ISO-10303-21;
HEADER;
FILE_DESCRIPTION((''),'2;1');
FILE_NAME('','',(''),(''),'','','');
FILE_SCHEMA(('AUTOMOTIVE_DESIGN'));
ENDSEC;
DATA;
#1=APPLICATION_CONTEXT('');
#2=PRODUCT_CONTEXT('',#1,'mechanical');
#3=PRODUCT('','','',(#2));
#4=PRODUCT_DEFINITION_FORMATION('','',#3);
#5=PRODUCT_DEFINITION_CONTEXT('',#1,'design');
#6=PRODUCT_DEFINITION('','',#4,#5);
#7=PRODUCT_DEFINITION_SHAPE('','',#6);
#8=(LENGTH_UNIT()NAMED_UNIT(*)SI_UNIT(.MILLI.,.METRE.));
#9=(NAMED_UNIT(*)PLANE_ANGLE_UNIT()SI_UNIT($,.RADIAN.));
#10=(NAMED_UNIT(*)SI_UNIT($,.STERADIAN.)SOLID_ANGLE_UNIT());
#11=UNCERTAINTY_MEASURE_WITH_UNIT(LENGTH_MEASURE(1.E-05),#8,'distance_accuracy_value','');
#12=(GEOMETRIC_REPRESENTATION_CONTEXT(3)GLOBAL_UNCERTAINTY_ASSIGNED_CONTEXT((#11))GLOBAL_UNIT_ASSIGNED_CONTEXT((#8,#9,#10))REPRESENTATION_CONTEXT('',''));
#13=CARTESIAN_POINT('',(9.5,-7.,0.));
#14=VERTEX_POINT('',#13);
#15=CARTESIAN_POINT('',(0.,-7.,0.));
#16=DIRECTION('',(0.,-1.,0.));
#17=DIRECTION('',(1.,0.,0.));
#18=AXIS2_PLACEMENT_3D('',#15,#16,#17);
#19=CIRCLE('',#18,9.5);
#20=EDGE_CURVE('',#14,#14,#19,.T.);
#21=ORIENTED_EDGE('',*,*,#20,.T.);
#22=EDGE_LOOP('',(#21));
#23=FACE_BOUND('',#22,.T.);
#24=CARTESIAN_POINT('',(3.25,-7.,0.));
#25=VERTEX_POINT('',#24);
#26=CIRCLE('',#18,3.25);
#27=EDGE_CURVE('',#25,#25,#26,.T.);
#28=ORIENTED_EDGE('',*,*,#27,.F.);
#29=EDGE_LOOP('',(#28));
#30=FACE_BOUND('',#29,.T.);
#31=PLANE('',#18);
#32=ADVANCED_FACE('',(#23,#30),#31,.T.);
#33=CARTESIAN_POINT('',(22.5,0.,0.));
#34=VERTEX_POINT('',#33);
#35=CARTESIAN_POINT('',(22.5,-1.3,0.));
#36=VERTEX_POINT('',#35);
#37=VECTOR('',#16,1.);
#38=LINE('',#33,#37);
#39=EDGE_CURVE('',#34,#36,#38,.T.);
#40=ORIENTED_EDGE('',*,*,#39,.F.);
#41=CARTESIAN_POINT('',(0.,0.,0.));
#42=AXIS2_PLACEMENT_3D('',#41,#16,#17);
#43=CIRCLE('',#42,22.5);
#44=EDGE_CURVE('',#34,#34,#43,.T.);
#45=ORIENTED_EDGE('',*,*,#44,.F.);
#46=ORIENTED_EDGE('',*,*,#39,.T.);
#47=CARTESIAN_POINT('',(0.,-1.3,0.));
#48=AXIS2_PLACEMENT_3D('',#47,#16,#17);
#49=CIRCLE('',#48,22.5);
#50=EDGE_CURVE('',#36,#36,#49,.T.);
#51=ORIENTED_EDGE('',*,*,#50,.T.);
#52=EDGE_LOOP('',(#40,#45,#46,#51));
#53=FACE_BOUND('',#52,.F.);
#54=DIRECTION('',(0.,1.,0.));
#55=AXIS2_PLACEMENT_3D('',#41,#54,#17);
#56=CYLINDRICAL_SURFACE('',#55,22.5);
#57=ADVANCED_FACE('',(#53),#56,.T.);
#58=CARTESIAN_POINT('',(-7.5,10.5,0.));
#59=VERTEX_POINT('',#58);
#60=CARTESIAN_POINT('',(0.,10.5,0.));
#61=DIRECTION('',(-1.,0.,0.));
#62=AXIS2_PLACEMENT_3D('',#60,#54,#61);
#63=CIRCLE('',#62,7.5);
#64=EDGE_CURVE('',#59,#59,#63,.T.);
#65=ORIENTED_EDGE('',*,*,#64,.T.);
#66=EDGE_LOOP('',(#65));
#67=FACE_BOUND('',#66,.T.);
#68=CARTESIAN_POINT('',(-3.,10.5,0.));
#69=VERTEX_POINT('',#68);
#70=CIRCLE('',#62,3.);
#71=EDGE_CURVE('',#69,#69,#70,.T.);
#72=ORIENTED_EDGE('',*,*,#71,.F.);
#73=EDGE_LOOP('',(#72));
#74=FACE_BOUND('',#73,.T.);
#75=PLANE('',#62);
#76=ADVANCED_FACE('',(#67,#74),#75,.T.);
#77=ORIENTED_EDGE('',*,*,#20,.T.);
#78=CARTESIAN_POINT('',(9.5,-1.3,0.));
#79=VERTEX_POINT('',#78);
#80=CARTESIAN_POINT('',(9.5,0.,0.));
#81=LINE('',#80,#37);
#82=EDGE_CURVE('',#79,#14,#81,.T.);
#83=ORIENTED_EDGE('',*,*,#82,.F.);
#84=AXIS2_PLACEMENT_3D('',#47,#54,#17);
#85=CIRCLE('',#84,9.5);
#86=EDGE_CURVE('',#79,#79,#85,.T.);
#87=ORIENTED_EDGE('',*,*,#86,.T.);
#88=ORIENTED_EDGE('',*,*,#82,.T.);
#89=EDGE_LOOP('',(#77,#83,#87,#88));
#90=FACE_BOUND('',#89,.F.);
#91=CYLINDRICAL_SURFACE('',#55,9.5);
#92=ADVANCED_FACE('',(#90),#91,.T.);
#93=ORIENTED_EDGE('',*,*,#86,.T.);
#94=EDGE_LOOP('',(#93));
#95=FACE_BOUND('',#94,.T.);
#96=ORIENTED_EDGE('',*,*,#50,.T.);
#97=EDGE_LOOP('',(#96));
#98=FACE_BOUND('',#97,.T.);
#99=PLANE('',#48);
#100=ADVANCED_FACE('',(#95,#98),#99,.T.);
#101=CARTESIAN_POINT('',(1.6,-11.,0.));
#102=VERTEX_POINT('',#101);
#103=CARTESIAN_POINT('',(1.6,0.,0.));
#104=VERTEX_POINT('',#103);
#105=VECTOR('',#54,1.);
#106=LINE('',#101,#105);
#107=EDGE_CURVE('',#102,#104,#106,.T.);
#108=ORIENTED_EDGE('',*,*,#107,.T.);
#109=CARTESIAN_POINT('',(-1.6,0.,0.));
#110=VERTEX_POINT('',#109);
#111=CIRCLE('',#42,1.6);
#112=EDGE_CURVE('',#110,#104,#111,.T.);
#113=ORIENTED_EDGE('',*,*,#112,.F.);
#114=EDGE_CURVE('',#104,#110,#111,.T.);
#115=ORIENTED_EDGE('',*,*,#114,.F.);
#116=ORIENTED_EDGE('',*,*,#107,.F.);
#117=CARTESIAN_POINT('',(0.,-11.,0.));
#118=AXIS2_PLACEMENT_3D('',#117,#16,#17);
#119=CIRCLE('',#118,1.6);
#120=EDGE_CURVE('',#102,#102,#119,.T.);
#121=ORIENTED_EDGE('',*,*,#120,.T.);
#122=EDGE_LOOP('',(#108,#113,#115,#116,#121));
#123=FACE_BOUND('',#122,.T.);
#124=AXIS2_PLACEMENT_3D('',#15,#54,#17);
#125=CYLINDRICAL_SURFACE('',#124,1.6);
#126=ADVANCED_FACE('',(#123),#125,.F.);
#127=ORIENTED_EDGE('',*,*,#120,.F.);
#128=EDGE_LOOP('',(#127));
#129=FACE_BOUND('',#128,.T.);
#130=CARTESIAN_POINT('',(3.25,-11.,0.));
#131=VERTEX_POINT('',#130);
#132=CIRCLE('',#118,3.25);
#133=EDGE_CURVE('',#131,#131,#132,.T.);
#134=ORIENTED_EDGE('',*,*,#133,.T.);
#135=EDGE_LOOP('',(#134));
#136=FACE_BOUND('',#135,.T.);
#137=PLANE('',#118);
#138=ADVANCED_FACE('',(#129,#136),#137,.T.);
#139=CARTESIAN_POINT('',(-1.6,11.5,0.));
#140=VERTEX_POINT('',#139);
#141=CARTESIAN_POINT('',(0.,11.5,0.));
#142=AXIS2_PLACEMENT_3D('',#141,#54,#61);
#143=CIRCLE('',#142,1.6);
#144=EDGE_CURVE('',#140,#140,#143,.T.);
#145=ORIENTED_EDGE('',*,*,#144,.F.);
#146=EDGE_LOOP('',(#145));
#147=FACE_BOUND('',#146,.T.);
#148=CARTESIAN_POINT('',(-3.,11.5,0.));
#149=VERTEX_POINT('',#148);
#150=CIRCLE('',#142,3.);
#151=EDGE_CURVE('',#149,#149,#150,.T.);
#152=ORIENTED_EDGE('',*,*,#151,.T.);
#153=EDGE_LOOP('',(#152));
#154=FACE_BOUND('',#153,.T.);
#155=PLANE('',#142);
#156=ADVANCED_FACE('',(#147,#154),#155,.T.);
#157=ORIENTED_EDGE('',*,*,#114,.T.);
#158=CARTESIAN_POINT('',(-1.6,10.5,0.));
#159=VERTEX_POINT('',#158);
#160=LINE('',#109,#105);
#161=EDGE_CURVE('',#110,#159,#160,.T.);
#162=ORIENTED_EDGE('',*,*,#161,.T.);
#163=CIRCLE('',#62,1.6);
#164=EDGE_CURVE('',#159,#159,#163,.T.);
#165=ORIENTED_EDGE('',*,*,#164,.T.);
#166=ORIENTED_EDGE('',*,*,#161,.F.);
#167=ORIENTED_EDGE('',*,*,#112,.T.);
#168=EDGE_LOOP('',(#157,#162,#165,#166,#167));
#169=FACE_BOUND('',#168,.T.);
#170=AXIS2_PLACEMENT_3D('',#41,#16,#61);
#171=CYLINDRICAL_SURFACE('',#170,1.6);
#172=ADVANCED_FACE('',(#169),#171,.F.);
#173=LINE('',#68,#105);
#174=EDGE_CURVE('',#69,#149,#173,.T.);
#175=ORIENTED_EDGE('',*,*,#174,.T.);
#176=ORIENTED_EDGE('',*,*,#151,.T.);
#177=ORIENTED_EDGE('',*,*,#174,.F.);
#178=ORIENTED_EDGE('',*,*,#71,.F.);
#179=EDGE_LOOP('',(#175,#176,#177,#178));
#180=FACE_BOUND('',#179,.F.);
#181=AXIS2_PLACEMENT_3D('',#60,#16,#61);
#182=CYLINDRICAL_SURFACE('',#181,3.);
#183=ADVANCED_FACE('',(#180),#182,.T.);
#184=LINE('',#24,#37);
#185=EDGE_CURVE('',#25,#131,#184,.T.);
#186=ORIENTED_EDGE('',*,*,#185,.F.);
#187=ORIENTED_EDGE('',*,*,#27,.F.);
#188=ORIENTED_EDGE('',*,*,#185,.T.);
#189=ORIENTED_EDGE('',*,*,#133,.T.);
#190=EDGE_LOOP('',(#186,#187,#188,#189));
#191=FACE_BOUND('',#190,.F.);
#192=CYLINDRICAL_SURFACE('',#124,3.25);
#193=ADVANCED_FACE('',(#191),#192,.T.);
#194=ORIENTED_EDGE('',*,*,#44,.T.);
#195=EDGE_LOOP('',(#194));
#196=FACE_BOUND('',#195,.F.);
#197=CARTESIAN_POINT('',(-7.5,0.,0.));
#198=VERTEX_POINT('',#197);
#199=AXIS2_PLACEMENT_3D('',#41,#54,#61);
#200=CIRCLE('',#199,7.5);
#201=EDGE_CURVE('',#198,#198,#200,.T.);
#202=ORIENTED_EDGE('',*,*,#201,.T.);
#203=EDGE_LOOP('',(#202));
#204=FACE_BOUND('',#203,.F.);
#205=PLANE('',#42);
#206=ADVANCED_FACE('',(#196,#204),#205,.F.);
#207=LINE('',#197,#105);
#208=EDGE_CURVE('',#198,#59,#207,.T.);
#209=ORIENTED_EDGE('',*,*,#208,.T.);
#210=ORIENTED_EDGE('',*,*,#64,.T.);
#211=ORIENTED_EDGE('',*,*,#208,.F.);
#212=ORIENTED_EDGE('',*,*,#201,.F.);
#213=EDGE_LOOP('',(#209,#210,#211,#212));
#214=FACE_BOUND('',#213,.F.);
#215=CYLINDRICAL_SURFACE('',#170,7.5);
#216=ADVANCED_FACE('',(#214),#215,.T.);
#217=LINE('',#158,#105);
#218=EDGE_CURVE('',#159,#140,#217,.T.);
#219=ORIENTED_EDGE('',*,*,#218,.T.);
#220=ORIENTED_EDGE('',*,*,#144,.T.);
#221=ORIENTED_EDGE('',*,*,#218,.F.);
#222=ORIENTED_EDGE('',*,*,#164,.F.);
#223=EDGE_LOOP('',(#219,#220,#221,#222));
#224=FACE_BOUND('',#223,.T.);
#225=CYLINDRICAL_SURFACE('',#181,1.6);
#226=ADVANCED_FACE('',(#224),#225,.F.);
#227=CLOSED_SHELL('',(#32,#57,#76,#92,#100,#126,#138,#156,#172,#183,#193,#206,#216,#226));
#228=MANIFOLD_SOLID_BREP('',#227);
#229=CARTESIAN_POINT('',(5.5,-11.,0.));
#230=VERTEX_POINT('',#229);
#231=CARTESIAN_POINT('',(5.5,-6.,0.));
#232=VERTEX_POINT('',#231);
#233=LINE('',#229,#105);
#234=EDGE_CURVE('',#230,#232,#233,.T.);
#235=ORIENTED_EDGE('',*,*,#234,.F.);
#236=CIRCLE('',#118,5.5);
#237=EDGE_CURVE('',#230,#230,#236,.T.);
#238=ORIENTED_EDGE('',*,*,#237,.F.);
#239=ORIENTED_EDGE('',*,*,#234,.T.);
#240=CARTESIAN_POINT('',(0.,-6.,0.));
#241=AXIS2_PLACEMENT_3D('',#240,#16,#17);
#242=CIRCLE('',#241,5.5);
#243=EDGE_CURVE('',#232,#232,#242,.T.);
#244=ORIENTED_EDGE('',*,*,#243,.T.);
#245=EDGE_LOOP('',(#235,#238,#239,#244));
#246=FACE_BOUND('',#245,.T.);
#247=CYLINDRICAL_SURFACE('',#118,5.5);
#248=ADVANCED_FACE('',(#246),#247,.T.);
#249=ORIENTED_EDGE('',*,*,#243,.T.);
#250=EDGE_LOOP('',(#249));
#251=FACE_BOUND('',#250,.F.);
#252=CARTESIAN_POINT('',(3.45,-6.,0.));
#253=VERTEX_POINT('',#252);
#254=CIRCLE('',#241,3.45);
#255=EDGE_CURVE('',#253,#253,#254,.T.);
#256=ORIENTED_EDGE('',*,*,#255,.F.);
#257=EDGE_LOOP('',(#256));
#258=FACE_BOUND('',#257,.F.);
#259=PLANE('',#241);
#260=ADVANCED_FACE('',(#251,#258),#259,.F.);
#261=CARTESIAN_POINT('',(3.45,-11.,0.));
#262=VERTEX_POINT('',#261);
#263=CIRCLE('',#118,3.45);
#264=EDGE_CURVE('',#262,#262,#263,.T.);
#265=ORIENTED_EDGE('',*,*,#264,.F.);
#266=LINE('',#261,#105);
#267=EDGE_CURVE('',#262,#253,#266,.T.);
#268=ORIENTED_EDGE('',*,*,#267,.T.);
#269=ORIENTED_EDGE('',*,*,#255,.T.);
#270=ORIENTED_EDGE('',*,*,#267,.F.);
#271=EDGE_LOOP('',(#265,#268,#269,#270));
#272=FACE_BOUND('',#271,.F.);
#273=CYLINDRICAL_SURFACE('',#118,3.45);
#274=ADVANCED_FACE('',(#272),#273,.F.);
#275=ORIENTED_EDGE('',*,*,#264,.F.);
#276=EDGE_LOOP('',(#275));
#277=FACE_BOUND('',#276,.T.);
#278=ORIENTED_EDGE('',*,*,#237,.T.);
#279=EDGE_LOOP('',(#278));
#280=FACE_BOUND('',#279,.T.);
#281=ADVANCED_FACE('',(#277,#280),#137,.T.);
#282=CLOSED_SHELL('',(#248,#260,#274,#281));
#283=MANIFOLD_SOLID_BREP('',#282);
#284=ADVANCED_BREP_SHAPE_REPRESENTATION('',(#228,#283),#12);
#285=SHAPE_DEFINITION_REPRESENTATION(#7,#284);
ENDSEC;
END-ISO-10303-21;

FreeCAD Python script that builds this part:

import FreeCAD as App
import Part
import Sketcher
from FreeCAD import Vector
Q = App.Units.Quantity

doc = App.newDocument("Part")
body = doc.addObject("PartDesign::Body", "Body")

# Sketch on XZ plane
sketch1 = body.newObject("Sketcher::SketchObject", "Sketch")
sketch1.AttachmentSupport = (doc.getObject("XZ_Plane"), [""])
sketch1.MapMode = "FlatFace"
sketch1.addGeometry([
    Part.Circle(Vector(0, 0, 0), Vector(0, 0, 1), 22.5),
    Part.Circle(Vector(0, 0, 0), Vector(0, 0, 1), 1.6),
], False)
sketch1.addConstraint([
    Sketcher.Constraint("Coincident", 0, 3, -1, 1),
    Sketcher.Constraint("Coincident", 1, 3, -1, 1),
    Sketcher.Constraint("Diameter", 0, Q("45 mm")),
    Sketcher.Constraint("Diameter", 1, Q("3.2 mm")),
])
pad1 = body.newObject("PartDesign::Pad", "Pad")
pad1.Profile = sketch1
pad1.Length = 1.3

# Sketch on XZ plane
sketch2 = body.newObject("Sketcher::SketchObject", "Sketch001")
sketch2.AttachmentSupport = (doc.getObject("XZ_Plane"), [""])
sketch2.MapMode = "FlatFace"
sketch2.addGeometry([
    Part.Circle(Vector(0, 0, 0), Vector(0, 0, 1), 9.5),
    Part.Circle(Vector(0, 0, 0), Vector(0, 0, 1), 1.6),
], False)
sketch2.addConstraint([
    Sketcher.Constraint("Coincident", 0, 3, -1, 1),
    Sketcher.Constraint("Coincident", 1, 3, -1, 1),
    Sketcher.Constraint("Diameter", 0, Q("19 mm")),
    Sketcher.Constraint("Diameter", 1, Q("3.2 mm")),
])
pad2 = body.newObject("PartDesign::Pad", "Pad001")
pad2.Profile = sketch2
pad2.Length = 7

# Sketch on XZ plane
sketch3 = body.newObject("Sketcher::SketchObject", "Sketch002")
sketch3.AttachmentSupport = (doc.getObject("XZ_Plane"), [""])
sketch3.MapMode = "FlatFace"
sketch3.AttachmentOffset = App.Placement(Vector(0, 0, 7), App.Rotation())
sketch3.addGeometry([
    Part.Circle(Vector(0, 0, 0), Vector(0, 0, 1), 3.2),
    Part.Circle(Vector(0, 0, 0), Vector(0, 0, 1), 1.6),
], False)
sketch3.addConstraint([
    Sketcher.Constraint("Coincident", 0, 3, -1, 1),
    Sketcher.Constraint("Coincident", 1, 3, -1, 1),
    Sketcher.Constraint("Diameter", 0, Q("6.5 mm")),
    Sketcher.Constraint("Diameter", 1, Q("3.2 mm")),
])
pad3 = body.newObject("PartDesign::Pad", "Pad002")
pad3.Profile = sketch3
pad3.Length = 4

# Sketch on XZ plane
sketch4 = body.newObject("Sketcher::SketchObject", "Sketch003")
sketch4.AttachmentSupport = (doc.getObject("XZ_Plane"), [""])
sketch4.MapMode = "FlatFace"
sketch4.addGeometry([
    Part.Circle(Vector(0, 0, 0), Vector(0, 0, 1), 7.5),
    Part.Circle(Vector(0, 0, 0), Vector(0, 0, 1), 1.6),
], False)
sketch4.addConstraint([
    Sketcher.Constraint("Coincident", 0, 3, -1, 1),
    Sketcher.Constraint("Coincident", 1, 3, -1, 1),
    Sketcher.Constraint("Diameter", 0, Q("15 mm")),
    Sketcher.Constraint("Diameter", 1, Q("3.2 mm")),
])
pad4 = body.newObject("PartDesign::Pad", "Pad003")
pad4.Profile = sketch4
pad4.Length = 10.5
pad4.Reversed = True

# Sketch on XZ plane
sketch5 = body.newObject("Sketcher::SketchObject", "Sketch004")
sketch5.AttachmentSupport = (doc.getObject("XZ_Plane"), [""])
sketch5.MapMode = "FlatFace"
sketch5.AttachmentOffset = App.Placement(Vector(0, 0, -10.5), App.Rotation())
sketch5.addGeometry([
    Part.Circle(Vector(0, 0, 0), Vector(0, 0, 1), 3),
    Part.Circle(Vector(0, 0, 0), Vector(0, 0, 1), 1.6),
], False)
sketch5.addConstraint([
    Sketcher.Constraint("Coincident", 0, 3, -1, 1),
    Sketcher.Constraint("Coincident", 1, 3, -1, 1),
    Sketcher.Constraint("Diameter", 0, Q("6 mm")),
    Sketcher.Constraint("Diameter", 1, Q("3.2 mm")),
])
pad5 = body.newObject("PartDesign::Pad", "Pad004")
pad5.Profile = sketch5
pad5.Length = 1
pad5.Reversed = True
body2 = doc.addObject("PartDesign::Body", "Body001")

# Sketch on XZ plane
sketch6 = body2.newObject("Sketcher::SketchObject", "Sketch005")
sketch6.AttachmentSupport = (doc.getObject("XZ_Plane001"), [""])
sketch6.MapMode = "FlatFace"
sketch6.AttachmentOffset = App.Placement(Vector(0, 0, 11), App.Rotation())
sketch6.addGeometry([
    Part.Circle(Vector(0, 0, 0), Vector(0, 0, 1), 5.5),
    Part.Circle(Vector(0, 0, 0), Vector(0, 0, 1), 3.5),
], False)
sketch6.addConstraint([
    Sketcher.Constraint("Coincident", 0, 3, -1, 1),
    Sketcher.Constraint("Coincident", 1, 3, -1, 1),
    Sketcher.Constraint("Diameter", 0, Q("11 mm")),
    Sketcher.Constraint("Diameter", 1, Q("6.9 mm")),
])
pad6 = body2.newObject("PartDesign::Pad", "Pad005")
pad6.Profile = sketch6
pad6.Length = 5
pad6.Reversed = True

doc.recompute()
